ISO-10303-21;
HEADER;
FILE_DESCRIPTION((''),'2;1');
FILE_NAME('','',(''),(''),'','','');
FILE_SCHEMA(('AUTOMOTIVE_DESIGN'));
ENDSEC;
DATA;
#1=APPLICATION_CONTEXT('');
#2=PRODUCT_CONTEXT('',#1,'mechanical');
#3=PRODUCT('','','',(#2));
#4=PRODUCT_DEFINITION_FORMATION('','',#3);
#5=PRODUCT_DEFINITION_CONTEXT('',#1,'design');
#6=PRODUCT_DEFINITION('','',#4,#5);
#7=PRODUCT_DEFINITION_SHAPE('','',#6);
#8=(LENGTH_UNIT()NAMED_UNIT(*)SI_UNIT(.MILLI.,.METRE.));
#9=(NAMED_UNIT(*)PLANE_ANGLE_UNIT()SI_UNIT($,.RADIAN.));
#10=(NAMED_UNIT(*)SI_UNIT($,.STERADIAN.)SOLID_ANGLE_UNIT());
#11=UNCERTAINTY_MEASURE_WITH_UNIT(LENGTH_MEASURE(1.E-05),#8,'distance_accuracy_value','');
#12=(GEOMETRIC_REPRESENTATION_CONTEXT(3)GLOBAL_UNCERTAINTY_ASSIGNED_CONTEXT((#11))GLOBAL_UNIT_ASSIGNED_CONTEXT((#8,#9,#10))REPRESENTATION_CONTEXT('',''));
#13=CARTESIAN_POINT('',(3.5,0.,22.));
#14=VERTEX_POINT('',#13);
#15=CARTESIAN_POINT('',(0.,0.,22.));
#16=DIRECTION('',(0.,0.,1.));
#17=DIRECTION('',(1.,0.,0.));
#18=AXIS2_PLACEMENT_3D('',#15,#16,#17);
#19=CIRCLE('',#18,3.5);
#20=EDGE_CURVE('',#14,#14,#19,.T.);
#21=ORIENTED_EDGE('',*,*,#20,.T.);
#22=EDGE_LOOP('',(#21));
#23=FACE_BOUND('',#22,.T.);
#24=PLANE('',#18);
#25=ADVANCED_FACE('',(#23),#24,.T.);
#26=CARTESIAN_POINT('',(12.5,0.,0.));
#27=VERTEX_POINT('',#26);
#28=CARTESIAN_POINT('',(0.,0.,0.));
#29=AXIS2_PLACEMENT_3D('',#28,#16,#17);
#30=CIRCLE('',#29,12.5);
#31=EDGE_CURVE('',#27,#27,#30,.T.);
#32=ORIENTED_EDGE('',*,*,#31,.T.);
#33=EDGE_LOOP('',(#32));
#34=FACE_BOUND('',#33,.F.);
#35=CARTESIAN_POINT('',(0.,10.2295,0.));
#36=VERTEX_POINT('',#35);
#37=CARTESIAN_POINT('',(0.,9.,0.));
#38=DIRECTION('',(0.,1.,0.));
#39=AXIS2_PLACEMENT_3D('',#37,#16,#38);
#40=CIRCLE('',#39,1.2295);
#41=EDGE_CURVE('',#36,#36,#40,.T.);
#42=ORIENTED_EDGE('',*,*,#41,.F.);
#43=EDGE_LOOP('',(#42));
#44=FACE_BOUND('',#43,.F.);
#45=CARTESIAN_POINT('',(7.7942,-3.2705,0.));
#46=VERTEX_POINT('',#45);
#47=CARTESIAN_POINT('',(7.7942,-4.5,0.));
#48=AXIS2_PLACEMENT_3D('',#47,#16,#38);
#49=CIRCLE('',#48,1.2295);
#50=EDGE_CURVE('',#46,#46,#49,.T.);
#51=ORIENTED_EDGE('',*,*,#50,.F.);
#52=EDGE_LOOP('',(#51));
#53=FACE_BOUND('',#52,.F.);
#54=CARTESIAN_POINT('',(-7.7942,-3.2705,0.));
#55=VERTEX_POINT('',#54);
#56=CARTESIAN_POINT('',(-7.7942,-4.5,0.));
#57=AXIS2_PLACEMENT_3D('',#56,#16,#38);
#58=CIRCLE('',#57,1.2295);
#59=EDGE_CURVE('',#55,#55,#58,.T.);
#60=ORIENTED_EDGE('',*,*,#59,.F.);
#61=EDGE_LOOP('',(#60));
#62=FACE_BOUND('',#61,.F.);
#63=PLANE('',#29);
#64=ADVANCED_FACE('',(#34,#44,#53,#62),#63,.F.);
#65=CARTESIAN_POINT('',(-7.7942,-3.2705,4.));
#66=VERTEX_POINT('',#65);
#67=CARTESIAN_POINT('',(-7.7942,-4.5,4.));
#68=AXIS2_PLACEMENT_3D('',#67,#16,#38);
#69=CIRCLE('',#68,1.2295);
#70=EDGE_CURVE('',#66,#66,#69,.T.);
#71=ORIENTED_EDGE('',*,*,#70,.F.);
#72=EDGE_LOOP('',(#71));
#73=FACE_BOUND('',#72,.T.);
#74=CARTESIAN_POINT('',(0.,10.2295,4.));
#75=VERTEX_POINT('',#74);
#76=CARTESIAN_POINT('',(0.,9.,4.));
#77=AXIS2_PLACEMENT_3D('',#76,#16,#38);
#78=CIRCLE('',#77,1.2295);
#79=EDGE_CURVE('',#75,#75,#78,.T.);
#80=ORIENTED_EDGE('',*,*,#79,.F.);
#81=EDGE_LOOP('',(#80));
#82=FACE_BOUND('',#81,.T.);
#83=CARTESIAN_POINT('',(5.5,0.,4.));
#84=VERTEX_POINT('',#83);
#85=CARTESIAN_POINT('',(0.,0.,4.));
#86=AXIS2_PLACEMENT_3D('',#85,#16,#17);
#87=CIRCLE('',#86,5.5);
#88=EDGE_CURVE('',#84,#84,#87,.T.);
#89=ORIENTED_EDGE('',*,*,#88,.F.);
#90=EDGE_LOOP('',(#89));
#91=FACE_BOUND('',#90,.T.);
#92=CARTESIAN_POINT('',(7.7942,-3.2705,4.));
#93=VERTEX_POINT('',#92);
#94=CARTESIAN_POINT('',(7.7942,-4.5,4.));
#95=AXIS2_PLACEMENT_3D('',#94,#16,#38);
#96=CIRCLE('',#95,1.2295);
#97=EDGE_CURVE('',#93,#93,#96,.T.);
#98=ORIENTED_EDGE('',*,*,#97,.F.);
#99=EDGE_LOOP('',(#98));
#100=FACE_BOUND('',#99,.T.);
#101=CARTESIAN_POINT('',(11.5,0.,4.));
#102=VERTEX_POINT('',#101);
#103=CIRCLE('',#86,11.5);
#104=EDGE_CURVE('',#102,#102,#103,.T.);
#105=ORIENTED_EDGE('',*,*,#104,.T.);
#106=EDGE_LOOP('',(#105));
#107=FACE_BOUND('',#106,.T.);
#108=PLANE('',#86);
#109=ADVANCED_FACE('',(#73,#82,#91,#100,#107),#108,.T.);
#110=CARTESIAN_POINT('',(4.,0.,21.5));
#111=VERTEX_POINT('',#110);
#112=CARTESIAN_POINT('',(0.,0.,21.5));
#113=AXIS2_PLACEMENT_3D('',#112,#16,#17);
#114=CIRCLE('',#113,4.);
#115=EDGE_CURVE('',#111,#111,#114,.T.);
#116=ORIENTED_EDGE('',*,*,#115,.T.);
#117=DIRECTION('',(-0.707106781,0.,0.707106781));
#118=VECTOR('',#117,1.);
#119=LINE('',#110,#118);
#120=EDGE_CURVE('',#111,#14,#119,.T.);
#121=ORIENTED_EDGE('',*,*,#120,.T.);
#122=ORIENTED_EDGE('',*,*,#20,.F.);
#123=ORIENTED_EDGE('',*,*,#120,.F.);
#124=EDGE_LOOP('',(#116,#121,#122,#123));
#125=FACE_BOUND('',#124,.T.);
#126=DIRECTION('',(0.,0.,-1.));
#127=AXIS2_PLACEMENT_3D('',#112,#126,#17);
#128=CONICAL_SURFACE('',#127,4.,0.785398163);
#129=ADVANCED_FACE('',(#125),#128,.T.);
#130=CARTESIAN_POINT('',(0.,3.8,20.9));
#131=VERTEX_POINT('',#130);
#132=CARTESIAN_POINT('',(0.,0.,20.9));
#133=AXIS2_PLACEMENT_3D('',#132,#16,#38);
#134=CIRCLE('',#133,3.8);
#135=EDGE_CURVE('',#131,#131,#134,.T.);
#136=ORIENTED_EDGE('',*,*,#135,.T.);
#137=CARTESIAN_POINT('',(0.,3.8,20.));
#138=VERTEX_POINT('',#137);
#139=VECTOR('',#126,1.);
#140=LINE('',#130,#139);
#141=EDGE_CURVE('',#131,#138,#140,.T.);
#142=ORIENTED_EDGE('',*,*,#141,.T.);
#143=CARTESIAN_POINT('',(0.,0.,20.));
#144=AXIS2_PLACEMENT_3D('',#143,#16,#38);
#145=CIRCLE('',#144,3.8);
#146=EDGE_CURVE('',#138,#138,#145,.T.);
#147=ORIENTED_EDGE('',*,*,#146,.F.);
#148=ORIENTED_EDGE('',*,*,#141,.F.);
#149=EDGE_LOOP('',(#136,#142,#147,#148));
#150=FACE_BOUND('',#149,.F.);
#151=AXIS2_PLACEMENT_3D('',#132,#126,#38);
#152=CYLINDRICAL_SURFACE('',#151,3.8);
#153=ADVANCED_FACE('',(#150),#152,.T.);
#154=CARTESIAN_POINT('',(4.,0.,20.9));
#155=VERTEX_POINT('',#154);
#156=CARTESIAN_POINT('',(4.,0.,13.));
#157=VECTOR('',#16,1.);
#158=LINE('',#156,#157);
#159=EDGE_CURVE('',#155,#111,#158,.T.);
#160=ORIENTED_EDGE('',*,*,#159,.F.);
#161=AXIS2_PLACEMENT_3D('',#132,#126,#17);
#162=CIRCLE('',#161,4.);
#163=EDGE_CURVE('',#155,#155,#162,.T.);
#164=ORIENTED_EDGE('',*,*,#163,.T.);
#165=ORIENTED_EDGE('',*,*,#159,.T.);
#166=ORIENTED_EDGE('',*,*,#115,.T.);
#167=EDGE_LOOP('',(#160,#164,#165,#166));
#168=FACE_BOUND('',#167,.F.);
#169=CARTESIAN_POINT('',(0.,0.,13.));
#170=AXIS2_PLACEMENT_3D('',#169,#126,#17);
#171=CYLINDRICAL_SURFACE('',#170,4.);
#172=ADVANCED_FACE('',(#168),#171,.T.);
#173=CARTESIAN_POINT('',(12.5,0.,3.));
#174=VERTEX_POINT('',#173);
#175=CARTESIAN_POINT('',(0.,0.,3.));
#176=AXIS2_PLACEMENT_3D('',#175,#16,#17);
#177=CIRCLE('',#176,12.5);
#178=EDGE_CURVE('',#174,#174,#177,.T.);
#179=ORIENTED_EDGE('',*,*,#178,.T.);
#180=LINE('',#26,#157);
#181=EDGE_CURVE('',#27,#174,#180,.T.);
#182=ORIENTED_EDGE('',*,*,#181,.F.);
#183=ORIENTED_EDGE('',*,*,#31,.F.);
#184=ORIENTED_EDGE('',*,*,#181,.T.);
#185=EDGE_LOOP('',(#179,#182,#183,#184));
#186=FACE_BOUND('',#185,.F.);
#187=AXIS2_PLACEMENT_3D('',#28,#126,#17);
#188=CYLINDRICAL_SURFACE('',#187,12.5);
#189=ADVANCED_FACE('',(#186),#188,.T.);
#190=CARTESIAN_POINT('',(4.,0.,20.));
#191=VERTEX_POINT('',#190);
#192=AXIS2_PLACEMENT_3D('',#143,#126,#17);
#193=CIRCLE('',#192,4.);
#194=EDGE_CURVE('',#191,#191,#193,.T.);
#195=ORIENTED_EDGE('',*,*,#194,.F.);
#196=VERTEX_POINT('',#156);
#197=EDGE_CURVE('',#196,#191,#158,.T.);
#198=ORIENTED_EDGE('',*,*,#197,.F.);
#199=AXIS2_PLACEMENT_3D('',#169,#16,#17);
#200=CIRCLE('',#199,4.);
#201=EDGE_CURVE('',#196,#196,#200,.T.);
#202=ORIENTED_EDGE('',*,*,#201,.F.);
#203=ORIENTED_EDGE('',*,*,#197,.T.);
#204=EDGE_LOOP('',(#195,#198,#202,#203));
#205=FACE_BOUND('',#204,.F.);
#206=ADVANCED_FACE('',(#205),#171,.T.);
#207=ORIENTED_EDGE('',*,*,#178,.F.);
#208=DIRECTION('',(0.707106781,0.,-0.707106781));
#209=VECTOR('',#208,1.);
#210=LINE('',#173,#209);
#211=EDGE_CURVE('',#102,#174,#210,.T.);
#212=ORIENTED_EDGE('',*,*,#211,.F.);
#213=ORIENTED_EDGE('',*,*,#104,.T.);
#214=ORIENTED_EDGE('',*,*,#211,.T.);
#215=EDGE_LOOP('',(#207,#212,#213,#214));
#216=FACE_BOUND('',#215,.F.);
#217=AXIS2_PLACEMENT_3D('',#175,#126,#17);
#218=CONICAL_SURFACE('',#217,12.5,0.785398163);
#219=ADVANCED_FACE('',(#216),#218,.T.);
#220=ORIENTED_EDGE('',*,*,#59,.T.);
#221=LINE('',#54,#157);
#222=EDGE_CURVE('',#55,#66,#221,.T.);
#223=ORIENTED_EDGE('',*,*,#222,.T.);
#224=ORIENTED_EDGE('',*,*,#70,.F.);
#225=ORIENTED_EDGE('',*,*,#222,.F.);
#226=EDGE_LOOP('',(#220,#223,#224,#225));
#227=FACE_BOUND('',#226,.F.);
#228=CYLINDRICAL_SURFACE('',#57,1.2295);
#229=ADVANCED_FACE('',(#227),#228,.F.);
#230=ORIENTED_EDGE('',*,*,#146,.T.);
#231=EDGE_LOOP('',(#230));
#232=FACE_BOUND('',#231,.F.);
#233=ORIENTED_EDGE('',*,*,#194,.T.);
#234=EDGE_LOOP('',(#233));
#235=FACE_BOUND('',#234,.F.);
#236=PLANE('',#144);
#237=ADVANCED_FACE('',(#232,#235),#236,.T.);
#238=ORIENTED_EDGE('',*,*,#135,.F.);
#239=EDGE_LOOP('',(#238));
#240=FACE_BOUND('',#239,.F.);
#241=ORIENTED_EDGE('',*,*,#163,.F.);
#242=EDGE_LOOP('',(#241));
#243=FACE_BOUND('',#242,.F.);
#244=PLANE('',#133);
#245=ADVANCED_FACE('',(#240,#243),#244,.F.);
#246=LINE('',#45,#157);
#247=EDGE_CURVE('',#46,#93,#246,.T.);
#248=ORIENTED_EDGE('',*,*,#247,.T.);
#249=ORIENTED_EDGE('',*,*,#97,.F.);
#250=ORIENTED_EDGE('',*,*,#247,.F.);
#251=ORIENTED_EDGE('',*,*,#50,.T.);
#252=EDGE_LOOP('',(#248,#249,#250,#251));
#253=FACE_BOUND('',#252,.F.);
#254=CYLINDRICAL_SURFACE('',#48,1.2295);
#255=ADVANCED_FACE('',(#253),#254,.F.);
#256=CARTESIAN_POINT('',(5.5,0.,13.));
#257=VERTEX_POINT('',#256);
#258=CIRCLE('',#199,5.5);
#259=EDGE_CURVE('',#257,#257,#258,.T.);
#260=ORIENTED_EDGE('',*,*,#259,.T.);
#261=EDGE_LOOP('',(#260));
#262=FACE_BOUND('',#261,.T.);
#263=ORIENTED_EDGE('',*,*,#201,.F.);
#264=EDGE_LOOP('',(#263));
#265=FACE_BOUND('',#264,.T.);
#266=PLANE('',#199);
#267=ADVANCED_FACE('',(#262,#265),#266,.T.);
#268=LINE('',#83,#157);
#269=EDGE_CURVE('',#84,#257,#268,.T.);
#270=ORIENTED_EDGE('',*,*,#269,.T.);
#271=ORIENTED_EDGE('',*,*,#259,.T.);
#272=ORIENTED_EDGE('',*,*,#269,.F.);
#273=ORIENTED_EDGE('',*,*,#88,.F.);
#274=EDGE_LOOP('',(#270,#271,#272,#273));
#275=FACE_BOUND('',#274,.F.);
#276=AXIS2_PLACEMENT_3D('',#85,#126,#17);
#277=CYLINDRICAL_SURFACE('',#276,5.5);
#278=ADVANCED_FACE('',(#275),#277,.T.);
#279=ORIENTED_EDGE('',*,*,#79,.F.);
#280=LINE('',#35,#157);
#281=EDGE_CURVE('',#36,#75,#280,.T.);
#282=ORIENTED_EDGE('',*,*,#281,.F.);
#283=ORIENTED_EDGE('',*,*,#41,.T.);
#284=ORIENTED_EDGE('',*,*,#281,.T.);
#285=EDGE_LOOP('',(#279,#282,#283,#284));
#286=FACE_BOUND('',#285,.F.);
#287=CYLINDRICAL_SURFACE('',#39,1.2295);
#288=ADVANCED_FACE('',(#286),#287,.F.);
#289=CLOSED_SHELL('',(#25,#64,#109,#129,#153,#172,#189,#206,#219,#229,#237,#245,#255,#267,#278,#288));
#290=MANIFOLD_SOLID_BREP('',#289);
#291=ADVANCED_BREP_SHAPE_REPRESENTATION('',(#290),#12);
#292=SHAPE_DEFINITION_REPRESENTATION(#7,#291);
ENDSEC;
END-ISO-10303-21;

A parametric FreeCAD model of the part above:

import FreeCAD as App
import Part
import Sketcher

V = App.Vector


def edges_at(feature, points):
    """Names of the edges that pass closest to the given points."""
    edges = feature.Shape.Edges
    near = lambda p: min(range(len(edges)), key=lambda i: edges[i].distToShape(Part.Vertex(*p))[0])
    return sorted({f"Edge{near(p) + 1}" for p in points})

doc = App.newDocument("Part")
params = doc.addObject("Spreadsheet::Sheet", "Params")
for row, (alias, value) in enumerate([
    ("sketch1_diameter", "25 mm"),
    ("pad1_length", "4 mm"),
    ("sketch2_diameter", "11 mm"),
    ("pad2_length", "9 mm"),
    ("sketch3_diameter", "8 mm"),
    ("pad3_length", "9 mm"),
    ("hole_diameter", "2.459 mm"),
    ("chamfer_size", "0.5 mm"),
    ("sketch5_height", "0.9 mm"),
    ("sketch5_width", "0.2 mm"),
    ("groove_angle", "360 deg"),
    ("chamfer2_size", "1 mm"),
], start=1):
    params.set(f"A{row}", alias)
    params.set(f"B{row}", "=" + value)
    params.setAlias(f"B{row}", alias)

body = doc.addObject("PartDesign::Body", "Body")

sketch1 = body.newObject("Sketcher::SketchObject", "Sketch")
sketch1.AttachmentSupport = (doc.getObject("XY_Plane"), [""])
sketch1.MapMode = "FlatFace"
sketch1.addGeometry(Part.Circle(V(0, 0, 0), V(0, 0, 1), 12), False)
sketch1.addConstraint([
    Sketcher.Constraint("Coincident", 0, 3, -1, 1),
    Sketcher.Constraint("Diameter", 0, 25.0),
])
sketch1.setExpression("Constraints[1]", "Params.sketch1_diameter")
pad1 = body.newObject("PartDesign::Pad", "Pad")
pad1.Profile = sketch1
pad1.setExpression("Length", "Params.pad1_length")

sketch2 = body.newObject("Sketcher::SketchObject", "Sketch001")
sketch2.AttachmentSupport = (doc.getObject("XY_Plane"), [""])
sketch2.MapMode = "FlatFace"
sketch2.AttachmentOffset = App.Placement(V(0, 0, 4), App.Rotation())
sketch2.addGeometry(Part.Circle(V(0, 0, 0), V(0, 0, 1), 6), False)
sketch2.addConstraint([
    Sketcher.Constraint("Coincident", 0, 3, -1, 1),
    Sketcher.Constraint("Diameter", 0, 11.0),
])
sketch2.setExpression("Constraints[1]", "Params.sketch2_diameter")
pad2 = body.newObject("PartDesign::Pad", "Pad001")
pad2.Profile = sketch2
pad2.setExpression("Length", "Params.pad2_length")

sketch3 = body.newObject("Sketcher::SketchObject", "Sketch002")
sketch3.AttachmentSupport = (doc.getObject("XY_Plane"), [""])
sketch3.MapMode = "FlatFace"
sketch3.AttachmentOffset = App.Placement(V(0, 0, 13), App.Rotation())
sketch3.addGeometry(Part.Circle(V(0, 0, 0), V(0, 0, 1), 4), False)
sketch3.addConstraint([
    Sketcher.Constraint("Coincident", 0, 3, -1, 1),
    Sketcher.Constraint("Diameter", 0, 8.0),
])
sketch3.setExpression("Constraints[1]", "Params.sketch3_diameter")
pad3 = body.newObject("PartDesign::Pad", "Pad002")
pad3.Profile = sketch3
pad3.setExpression("Length", "Params.pad3_length")

sketch4 = body.newObject("Sketcher::SketchObject", "Sketch003")
sketch4.AttachmentSupport = (doc.getObject("XY_Plane"), [""])
sketch4.MapMode = "FlatFace"
sketch4.addGeometry([
    Part.Circle(V(0, 9, 0), V(0, 0, 1), 1.2),
    Part.Circle(V(-7.8, -4.5, 0), V(0, 0, 1), 1.2),
    Part.Circle(V(7.8, -4.5, 0), V(0, 0, 1), 1.2),
], False)
sketch4.addConstraint([
    Sketcher.Constraint("Equal", 0, 1),
    Sketcher.Constraint("Equal", 1, 2),
    Sketcher.Constraint("Symmetric", 1, 3, 2, 3, -2),
    Sketcher.Constraint("PointOnObject", 0, 3, -2),
    Sketcher.Constraint("Diameter", 0, 2.459),
    Sketcher.Constraint("DistanceY", -1, 1, 0, 3, 9.0),
    Sketcher.Constraint("DistanceY", 1, 3, -1, 1, 4.5),
    Sketcher.Constraint("DistanceX", 1, 3, -1, 1, 7.7942),
])
doc.recompute()
hole = body.newObject("PartDesign::Hole", "Hole")
hole.Profile = sketch4
hole.ThreadType = "None"
hole.setExpression("Diameter", "Params.hole_diameter")
hole.DepthType = "ThroughAll"
hole.Reversed = True
doc.recompute()

chamfer = body.newObject("PartDesign::Chamfer", "Chamfer")
chamfer.Base = (hole, edges_at(hole, [(-4, 0, 22)]))
chamfer.setExpression("Size", "Params.chamfer_size")

sketch5 = body.newObject("Sketcher::SketchObject", "Sketch004")
sketch5.AttachmentSupport = (doc.getObject("YZ_Plane"), [""])
sketch5.MapMode = "FlatFace"
sketch5.addGeometry([
    Part.LineSegment(V(3.8, 20, 0), V(4, 20, 0)),
    Part.LineSegment(V(4, 20, 0), V(4, 20.9, 0)),
    Part.LineSegment(V(4, 20.9, 0), V(3.8, 20.9, 0)),
    Part.LineSegment(V(3.8, 20.9, 0), V(3.8, 20, 0)),
], False)
sketch5.addConstraint([
    Sketcher.Constraint("Coincident", 0, 2, 1, 1),
    Sketcher.Constraint("Coincident", 1, 2, 2, 1),
    Sketcher.Constraint("Coincident", 2, 2, 3, 1),
    Sketcher.Constraint("Coincident", 3, 2, 0, 1),
    Sketcher.Constraint("Horizontal", 0),
    Sketcher.Constraint("Vertical", 1),
    Sketcher.Constraint("Horizontal", 2),
    Sketcher.Constraint("Vertical", 3),
    Sketcher.Constraint("DistanceY", 1, 1, 1, 2, 0.9),
    Sketcher.Constraint("DistanceX", 0, 1, 0, 2, 0.2),
    Sketcher.Constraint("DistanceX", -1, 1, 0, 2, 4.0),
    Sketcher.Constraint("DistanceY", -1, 1, 0, 2, 20.0),
])
sketch5.setExpression("Constraints[8]", "Params.sketch5_height")
sketch5.setExpression("Constraints[9]", "Params.sketch5_width")
groove = body.newObject("PartDesign::Groove", "Groove")
groove.Profile = sketch5
groove.ReferenceAxis = (sketch5, ["V_Axis"])
groove.setExpression("Angle", "Params.groove_angle")
doc.recompute()

chamfer2 = body.newObject("PartDesign::Chamfer", "Chamfer001")
chamfer2.Base = (groove, edges_at(groove, [(-12.5, 0, 4)]))
chamfer2.setExpression("Size", "Params.chamfer2_size")

doc.recompute()
